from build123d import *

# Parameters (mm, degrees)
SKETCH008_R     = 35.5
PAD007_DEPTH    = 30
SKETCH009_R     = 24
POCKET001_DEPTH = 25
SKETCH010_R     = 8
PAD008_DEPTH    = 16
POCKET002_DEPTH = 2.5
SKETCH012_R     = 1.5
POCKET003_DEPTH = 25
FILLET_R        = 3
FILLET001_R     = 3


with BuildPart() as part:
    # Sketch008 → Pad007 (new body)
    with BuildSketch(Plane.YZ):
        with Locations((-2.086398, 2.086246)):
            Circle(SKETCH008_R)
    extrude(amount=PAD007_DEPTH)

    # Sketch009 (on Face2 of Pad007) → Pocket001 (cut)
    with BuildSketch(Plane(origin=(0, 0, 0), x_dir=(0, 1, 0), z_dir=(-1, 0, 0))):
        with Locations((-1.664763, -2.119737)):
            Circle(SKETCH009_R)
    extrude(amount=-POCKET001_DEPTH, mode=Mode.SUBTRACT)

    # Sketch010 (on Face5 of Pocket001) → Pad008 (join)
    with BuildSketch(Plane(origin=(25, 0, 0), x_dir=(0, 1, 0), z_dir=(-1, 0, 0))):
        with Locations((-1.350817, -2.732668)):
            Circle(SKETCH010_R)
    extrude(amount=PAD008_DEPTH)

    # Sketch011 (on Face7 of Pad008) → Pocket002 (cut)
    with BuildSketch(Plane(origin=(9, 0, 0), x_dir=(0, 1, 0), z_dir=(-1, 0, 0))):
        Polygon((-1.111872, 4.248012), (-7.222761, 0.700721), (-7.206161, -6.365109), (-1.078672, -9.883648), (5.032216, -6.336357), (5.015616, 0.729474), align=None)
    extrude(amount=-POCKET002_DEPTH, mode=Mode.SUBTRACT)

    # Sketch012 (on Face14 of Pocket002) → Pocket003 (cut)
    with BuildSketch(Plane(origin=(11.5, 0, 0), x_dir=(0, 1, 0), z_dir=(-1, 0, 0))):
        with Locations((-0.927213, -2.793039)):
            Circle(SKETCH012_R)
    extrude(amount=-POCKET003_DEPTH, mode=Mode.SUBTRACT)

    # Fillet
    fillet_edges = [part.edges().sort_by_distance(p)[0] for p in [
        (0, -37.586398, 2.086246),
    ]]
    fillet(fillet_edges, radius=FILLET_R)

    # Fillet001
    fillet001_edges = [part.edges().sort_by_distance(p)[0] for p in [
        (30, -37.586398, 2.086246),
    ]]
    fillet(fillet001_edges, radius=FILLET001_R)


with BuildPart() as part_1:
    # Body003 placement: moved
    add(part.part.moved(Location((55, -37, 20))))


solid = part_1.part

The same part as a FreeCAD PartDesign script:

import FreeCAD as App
import Part
import Sketcher


def edges_at(feature, points):
    """Names of the edges that pass closest to the given points."""
    edges = feature.Shape.Edges
    near = lambda p: min(range(len(edges)), key=lambda i: edges[i].distToShape(Part.Vertex(*p))[0])
    return sorted({f"Edge{near(p) + 1}" for p in points})

doc = App.newDocument("Part")
body = doc.addObject("PartDesign::Body", "Body")

# Sketch on YZ plane
sketch1 = doc.addObject("Sketcher::SketchObject", "Sketch")
body.addObject(sketch1)
sketch1.AttachmentSupport = (doc.YZ_Plane, [""])
sketch1.MapMode = "FlatFace"
sketch1.addGeometry(Part.Circle(App.Vector(-2, 2, 0), App.Vector(0, 0, 1), 36), False)
sketch1.addConstraint(Sketcher.Constraint("Diameter", 0, 71.0))
sketch1.addConstraint(Sketcher.Constraint("DistanceX", 0, 3, -1, 1, 2.086398))
sketch1.addConstraint(Sketcher.Constraint("DistanceY", -1, 1, 0, 3, 2.086246))
pad1 = doc.addObject("PartDesign::Pad", "Pad")
body.addObject(pad1)
pad1.Profile = sketch1
pad1.Length = 30

# Sketch on YZ plane
sketch2 = doc.addObject("Sketcher::SketchObject", "Sketch001")
body.addObject(sketch2)
sketch2.AttachmentSupport = (doc.YZ_Plane, [""])
sketch2.MapMode = "FlatFace"
sketch2.addGeometry(Part.Circle(App.Vector(-2, 2, 0), App.Vector(0, 0, 1), 24), False)
sketch2.addConstraint(Sketcher.Constraint("Diameter", 0, 48.0))
sketch2.addConstraint(Sketcher.Constraint("DistanceX", 0, 3, -1, 1, 1.664763))
sketch2.addConstraint(Sketcher.Constraint("DistanceY", -1, 1, 0, 3, 2.119737))
pocket1 = doc.addObject("PartDesign::Pocket", "Pocket")
body.addObject(pocket1)
pocket1.Profile = sketch2
pocket1.Length = 25
pocket1.Reversed = True

# Sketch on YZ plane
sketch3 = doc.addObject("Sketcher::SketchObject", "Sketch002")
body.addObject(sketch3)
sketch3.AttachmentSupport = (doc.YZ_Plane, [""])
sketch3.MapMode = "FlatFace"
sketch3.AttachmentOffset = App.Placement(App.Vector(0, 0, 25), App.Rotation())
sketch3.addGeometry(Part.Circle(App.Vector(-1, 3, 0), App.Vector(0, 0, 1), 8), False)
sketch3.addConstraint(Sketcher.Constraint("Diameter", 0, 16.0))
sketch3.addConstraint(Sketcher.Constraint("DistanceX", 0, 3, -1, 1, 1.350817))
sketch3.addConstraint(Sketcher.Constraint("DistanceY", -1, 1, 0, 3, 2.732668))
pad2 = doc.addObject("PartDesign::Pad", "Pad001")
body.addObject(pad2)
pad2.Profile = sketch3
pad2.Length = 16
pad2.Reversed = True

# Sketch on YZ plane
sketch4 = doc.addObject("Sketcher::SketchObject", "Sketch003")
body.addObject(sketch4)
sketch4.AttachmentSupport = (doc.YZ_Plane, [""])
sketch4.MapMode = "FlatFace"
sketch4.AttachmentOffset = App.Placement(App.Vector(0, 0, 9), App.Rotation())
sketch4.addGeometry(Part.LineSegment(App.Vector(-1, -4, 0), App.Vector(-7, -1, 0)), False)
sketch4.addGeometry(Part.LineSegment(App.Vector(-7, -1, 0), App.Vector(-7, 6, 0)), False)
sketch4.addGeometry(Part.LineSegment(App.Vector(-7, 6, 0), App.Vector(-1, 10, 0)), False)
sketch4.addGeometry(Part.LineSegment(App.Vector(-1, 10, 0), App.Vector(5, 6, 0)), False)
sketch4.addGeometry(Part.LineSegment(App.Vector(5, 6, 0), App.Vector(5, -1, 0)), False)
sketch4.addGeometry(Part.LineSegment(App.Vector(5, -1, 0), App.Vector(-1, -4, 0)), False)
sketch4.addConstraint(Sketcher.Constraint("Coincident", 0, 2, 1, 1))
sketch4.addConstraint(Sketcher.Constraint("Coincident", 1, 2, 2, 1))
sketch4.addConstraint(Sketcher.Constraint("Coincident", 2, 2, 3, 1))
sketch4.addConstraint(Sketcher.Constraint("Coincident", 3, 2, 4, 1))
sketch4.addConstraint(Sketcher.Constraint("Coincident", 4, 2, 5, 1))
sketch4.addConstraint(Sketcher.Constraint("Coincident", 5, 2, 0, 1))
sketch4.addConstraint(Sketcher.Constraint("Parallel", 0, 3))
sketch4.addConstraint(Sketcher.Constraint("Parallel", 1, 4))
sketch4.addConstraint(Sketcher.Constraint("Parallel", 2, 5))
sketch4.addConstraint(Sketcher.Constraint("Equal", 0, 1))
sketch4.addConstraint(Sketcher.Constraint("Equal", 1, 2))
sketch4.addConstraint(Sketcher.Constraint("Equal", 2, 3))
sketch4.addConstraint(Sketcher.Constraint("DistanceX", 0, 2, 1, 2, 0.0166))
sketch4.addConstraint(Sketcher.Constraint("DistanceX", 5, 2, 2, 2, 0.0332))
sketch4.addConstraint(Sketcher.Constraint("Distance", 0, 7.06585))
sketch4.addConstraint(Sketcher.Constraint("DistanceX", 0, 2, -1, 1, 7.222761))
sketch4.addConstraint(Sketcher.Constraint("DistanceY", 0, 2, -1, 1, 0.700721))
sketch4.addConstraint(Sketcher.Constraint("DistanceY", -1, 1, 2, 2, 9.883648))
pocket2 = doc.addObject("PartDesign::Pocket", "Pocket001")
body.addObject(pocket2)
pocket2.Profile = sketch4
pocket2.Length = 2.5
pocket2.Reversed = True

# Sketch on YZ plane
sketch5 = doc.addObject("Sketcher::SketchObject", "Sketch004")
body.addObject(sketch5)
sketch5.AttachmentSupport = (doc.YZ_Plane, [""])
sketch5.MapMode = "FlatFace"
sketch5.AttachmentOffset = App.Placement(App.Vector(0, 0, 11.5), App.Rotation())
sketch5.addGeometry(Part.Circle(App.Vector(-0.9, 2.8, 0), App.Vector(0, 0, 1), 1.5), False)
sketch5.addConstraint(Sketcher.Constraint("Diameter", 0, 3.0))
sketch5.addConstraint(Sketcher.Constraint("DistanceY", -1, 1, 0, 3, 2.793039))
sketch5.addConstraint(Sketcher.Constraint("DistanceX", 0, 3, -1, 1, 0.927213))
pocket3 = doc.addObject("PartDesign::Pocket", "Pocket002")
body.addObject(pocket3)
pocket3.Profile = sketch5
pocket3.Length = 25
pocket3.Reversed = True
doc.recompute()

fillet = doc.addObject("PartDesign::Fillet", "Fillet")
body.addObject(fillet)
fillet.Base = (pocket3, edges_at(pocket3, [(0, -37.586, 2.086)]))
fillet.Radius = 3
doc.recompute()

fillet2 = doc.addObject("PartDesign::Fillet", "Fillet001")
body.addObject(fillet2)
fillet2.Base = (fillet, edges_at(fillet, [(30, -37.586, 2.086)]))
fillet2.Radius = 3
body2 = doc.addObject("PartDesign::Body", "Body001")
doc.recompute()

body.Placement = App.Placement(App.Vector(55, -37, 20), App.Rotation(App.Vector(0, 0, 1), 0))
boolean = doc.addObject("PartDesign::Boolean", "Boolean")
body2.addObject(boolean)
boolean.Type = "Fuse"
boolean.addObjects([body])

doc.recompute()
